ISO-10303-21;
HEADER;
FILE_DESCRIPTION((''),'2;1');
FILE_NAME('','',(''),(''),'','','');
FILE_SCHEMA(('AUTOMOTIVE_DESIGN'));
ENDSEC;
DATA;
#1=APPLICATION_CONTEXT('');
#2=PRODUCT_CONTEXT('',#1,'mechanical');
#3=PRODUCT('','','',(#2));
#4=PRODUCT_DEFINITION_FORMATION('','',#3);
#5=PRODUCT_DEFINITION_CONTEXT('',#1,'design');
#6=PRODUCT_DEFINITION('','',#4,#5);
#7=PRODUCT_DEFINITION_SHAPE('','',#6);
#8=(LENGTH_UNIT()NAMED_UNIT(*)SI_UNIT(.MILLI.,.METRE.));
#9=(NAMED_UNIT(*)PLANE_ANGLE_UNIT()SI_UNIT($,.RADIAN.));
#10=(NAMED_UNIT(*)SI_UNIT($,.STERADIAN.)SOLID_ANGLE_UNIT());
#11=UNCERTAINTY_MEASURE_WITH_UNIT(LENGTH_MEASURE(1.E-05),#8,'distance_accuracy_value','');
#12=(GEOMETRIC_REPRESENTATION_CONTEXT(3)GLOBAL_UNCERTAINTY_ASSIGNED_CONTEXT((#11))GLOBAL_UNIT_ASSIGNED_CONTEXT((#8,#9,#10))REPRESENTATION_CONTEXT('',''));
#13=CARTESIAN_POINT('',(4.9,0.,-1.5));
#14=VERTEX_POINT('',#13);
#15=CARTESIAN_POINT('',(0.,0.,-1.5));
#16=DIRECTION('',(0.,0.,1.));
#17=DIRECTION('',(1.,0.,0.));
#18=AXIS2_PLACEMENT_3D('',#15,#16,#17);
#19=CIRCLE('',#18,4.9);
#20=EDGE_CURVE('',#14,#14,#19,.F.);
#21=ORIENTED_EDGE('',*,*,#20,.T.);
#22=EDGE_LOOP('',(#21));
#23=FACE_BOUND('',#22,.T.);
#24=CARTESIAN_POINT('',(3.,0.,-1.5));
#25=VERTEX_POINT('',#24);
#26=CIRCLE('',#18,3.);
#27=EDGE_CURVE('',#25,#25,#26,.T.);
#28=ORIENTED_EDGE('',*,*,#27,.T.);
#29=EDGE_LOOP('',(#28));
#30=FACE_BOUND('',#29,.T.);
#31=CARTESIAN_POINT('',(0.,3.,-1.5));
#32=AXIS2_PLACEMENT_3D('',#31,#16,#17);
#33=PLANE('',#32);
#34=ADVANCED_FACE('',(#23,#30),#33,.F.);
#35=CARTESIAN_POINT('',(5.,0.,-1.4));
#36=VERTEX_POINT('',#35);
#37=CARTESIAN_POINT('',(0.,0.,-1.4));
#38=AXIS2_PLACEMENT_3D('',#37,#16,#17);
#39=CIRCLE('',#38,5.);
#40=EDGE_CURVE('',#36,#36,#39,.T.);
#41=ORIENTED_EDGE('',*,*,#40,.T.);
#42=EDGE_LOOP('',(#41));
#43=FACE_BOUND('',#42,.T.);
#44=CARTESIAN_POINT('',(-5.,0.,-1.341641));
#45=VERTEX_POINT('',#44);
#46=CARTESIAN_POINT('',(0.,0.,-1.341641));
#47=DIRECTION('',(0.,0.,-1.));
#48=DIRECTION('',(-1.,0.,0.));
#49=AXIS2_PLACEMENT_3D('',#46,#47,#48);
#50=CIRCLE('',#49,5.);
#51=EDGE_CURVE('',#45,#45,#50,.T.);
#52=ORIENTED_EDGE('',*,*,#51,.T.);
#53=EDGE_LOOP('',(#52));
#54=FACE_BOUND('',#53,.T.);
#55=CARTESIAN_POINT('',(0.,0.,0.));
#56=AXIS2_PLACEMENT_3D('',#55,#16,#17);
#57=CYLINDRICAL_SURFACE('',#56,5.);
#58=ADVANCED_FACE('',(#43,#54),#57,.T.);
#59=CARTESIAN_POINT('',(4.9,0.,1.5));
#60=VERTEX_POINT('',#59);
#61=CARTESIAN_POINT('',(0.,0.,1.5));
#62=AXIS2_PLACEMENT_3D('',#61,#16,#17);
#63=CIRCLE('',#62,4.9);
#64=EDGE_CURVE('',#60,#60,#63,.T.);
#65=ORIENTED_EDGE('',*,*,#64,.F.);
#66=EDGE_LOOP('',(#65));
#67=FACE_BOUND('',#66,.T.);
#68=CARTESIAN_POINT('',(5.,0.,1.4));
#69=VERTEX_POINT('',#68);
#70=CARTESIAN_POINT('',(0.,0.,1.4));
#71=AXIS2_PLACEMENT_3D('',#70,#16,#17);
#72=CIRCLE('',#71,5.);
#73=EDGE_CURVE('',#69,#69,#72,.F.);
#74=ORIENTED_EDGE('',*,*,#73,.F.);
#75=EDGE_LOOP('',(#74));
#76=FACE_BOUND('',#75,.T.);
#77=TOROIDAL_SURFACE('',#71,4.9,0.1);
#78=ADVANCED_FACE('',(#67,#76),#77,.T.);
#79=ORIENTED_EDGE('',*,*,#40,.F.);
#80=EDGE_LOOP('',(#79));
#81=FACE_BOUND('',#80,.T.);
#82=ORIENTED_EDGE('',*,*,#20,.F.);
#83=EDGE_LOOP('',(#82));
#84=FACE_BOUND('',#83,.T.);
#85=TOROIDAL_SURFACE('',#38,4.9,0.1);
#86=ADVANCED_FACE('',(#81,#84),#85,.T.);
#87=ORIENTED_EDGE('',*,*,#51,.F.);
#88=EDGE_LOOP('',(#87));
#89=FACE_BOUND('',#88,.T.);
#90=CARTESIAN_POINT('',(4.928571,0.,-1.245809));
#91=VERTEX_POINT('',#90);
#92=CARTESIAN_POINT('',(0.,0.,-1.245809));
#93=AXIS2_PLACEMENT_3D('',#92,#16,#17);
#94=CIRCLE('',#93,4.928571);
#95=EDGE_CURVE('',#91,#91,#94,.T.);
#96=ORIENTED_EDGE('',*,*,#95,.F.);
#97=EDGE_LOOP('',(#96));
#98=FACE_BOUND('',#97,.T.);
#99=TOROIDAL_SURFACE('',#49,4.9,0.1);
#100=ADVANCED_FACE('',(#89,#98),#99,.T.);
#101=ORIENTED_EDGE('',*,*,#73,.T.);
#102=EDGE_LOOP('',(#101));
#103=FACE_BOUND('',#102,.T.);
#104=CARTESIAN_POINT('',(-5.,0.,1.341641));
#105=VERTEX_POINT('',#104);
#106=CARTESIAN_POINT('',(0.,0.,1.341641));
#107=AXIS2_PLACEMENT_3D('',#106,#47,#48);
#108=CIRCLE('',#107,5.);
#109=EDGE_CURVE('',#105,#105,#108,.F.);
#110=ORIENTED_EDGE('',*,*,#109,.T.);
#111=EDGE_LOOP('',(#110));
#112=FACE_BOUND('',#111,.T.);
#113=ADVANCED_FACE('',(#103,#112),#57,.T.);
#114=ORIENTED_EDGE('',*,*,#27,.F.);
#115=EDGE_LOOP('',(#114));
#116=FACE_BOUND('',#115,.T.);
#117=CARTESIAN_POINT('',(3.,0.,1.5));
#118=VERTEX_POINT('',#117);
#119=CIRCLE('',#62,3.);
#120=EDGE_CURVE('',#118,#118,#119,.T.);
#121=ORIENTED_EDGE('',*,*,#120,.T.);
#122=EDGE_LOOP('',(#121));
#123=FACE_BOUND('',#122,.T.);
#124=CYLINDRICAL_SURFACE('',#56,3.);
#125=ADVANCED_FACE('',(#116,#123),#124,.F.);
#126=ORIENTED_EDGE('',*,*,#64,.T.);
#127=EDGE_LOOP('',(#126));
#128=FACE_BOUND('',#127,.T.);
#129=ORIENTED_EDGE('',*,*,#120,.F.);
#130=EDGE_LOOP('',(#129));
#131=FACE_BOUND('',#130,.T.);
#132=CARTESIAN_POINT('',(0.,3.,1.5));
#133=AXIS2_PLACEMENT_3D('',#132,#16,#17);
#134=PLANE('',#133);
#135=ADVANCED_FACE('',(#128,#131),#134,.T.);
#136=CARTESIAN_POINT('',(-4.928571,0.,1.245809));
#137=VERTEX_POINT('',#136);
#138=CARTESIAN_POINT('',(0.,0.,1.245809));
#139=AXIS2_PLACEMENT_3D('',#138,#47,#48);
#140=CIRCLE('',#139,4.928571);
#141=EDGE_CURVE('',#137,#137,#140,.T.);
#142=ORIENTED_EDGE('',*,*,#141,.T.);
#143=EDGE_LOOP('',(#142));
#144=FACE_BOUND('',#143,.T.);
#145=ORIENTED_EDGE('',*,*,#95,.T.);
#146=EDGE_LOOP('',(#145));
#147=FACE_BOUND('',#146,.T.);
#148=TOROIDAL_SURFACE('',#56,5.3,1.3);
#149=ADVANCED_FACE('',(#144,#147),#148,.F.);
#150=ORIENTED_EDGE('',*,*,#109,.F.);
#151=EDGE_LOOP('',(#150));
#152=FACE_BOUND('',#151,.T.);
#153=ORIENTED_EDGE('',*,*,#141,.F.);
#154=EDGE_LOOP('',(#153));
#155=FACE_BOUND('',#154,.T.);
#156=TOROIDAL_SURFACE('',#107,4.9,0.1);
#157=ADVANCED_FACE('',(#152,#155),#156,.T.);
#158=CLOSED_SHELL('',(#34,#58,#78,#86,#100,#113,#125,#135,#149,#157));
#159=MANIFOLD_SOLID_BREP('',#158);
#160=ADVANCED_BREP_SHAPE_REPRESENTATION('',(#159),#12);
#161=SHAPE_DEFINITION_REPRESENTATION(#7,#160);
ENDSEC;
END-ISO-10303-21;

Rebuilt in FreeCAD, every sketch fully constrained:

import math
import FreeCAD as App
import Part
import Sketcher
from FreeCAD import Vector


def edges_at(feature, points):
    """Names of the edges that pass closest to the given points."""
    edges = feature.Shape.Edges
    near = lambda p: min(range(len(edges)), key=lambda i: edges[i].distToShape(Part.Vertex(*p))[0])
    return sorted({f"Edge{near(p) + 1}" for p in points})

doc = App.newDocument("Part")
body = doc.addObject("PartDesign::Body", "Body")

# Sketch on YZ plane
sketch1 = doc.addObject("Sketcher::SketchObject", "Sketch")
body.addObject(sketch1)
sketch1.AttachmentSupport = (doc.YZ_Plane, [""])
sketch1.MapMode = "FlatFace"
sketch1.addGeometry([
    Part.LineSegment(Vector(5, 1.5, 0), Vector(3, 1.5, 0)),  # 0
    Part.LineSegment(Vector(3, 1.5, 0), Vector(3, -1.5, 0)),  # 1
    Part.LineSegment(Vector(3, -1.5, 0), Vector(5, -1.5, 0)),  # 2
    Part.LineSegment(Vector(5, -1.5, 0), Vector(5, -1.264911, 0)),  # 3
    Part.ArcOfCircle(Part.Circle(Vector(5.3, 0, 0), Vector(0, 0, 1), 1.3), math.radians(103.342364), math.radians(256.657636)),  # 4
    Part.LineSegment(Vector(5, 1.264911, 0), Vector(5, 1.5, 0)),  # 5
], False)
sketch1.addConstraint([
    Sketcher.Constraint("Coincident", 0, 2, 1, 1),
    Sketcher.Constraint("Coincident", 1, 2, 2, 1),
    Sketcher.Constraint("Coincident", 2, 2, 3, 1),
    Sketcher.Constraint("Coincident", 3, 2, 4, 2),
    Sketcher.Constraint("Coincident", 4, 1, 5, 1),
    Sketcher.Constraint("Coincident", 5, 2, 0, 1),
    Sketcher.Constraint("Horizontal", 0),
    Sketcher.Constraint("Vertical", 1),
    Sketcher.Constraint("Horizontal", 2),
    Sketcher.Constraint("Vertical", 3),
    Sketcher.Constraint("Vertical", 5),
    Sketcher.Constraint("Symmetric", 3, 2, 4, 1, -1),
    Sketcher.Constraint("Equal", 3, 5),
    Sketcher.Constraint("Radius", 4, 1.3),
    Sketcher.Constraint("DistanceX", 0, 2, 0, 1, 2.0),
    Sketcher.Constraint("DistanceY", 1, 2, 1, 1, 3.0),
    Sketcher.Constraint("DistanceX", -1, 1, 0, 2, 3.0),
    Sketcher.Constraint("DistanceX", -1, 1, 4, 3, 5.3),
])
revolution = doc.addObject("PartDesign::Revolution", "Revolution")
body.addObject(revolution)
revolution.Profile = sketch1
revolution.ReferenceAxis = (sketch1, ["V_Axis"])
revolution.Angle = 360
doc.recompute()

fillet = doc.addObject("PartDesign::Fillet", "Fillet")
body.addObject(fillet)
fillet.Base = (revolution, edges_at(revolution, [
    (0, -5, -1.5),
    (0, -5, -1.265),
    (0, -5, 1.265),
    (0, -5, 1.5),
]))
fillet.Radius = 0.1

doc.recompute()
